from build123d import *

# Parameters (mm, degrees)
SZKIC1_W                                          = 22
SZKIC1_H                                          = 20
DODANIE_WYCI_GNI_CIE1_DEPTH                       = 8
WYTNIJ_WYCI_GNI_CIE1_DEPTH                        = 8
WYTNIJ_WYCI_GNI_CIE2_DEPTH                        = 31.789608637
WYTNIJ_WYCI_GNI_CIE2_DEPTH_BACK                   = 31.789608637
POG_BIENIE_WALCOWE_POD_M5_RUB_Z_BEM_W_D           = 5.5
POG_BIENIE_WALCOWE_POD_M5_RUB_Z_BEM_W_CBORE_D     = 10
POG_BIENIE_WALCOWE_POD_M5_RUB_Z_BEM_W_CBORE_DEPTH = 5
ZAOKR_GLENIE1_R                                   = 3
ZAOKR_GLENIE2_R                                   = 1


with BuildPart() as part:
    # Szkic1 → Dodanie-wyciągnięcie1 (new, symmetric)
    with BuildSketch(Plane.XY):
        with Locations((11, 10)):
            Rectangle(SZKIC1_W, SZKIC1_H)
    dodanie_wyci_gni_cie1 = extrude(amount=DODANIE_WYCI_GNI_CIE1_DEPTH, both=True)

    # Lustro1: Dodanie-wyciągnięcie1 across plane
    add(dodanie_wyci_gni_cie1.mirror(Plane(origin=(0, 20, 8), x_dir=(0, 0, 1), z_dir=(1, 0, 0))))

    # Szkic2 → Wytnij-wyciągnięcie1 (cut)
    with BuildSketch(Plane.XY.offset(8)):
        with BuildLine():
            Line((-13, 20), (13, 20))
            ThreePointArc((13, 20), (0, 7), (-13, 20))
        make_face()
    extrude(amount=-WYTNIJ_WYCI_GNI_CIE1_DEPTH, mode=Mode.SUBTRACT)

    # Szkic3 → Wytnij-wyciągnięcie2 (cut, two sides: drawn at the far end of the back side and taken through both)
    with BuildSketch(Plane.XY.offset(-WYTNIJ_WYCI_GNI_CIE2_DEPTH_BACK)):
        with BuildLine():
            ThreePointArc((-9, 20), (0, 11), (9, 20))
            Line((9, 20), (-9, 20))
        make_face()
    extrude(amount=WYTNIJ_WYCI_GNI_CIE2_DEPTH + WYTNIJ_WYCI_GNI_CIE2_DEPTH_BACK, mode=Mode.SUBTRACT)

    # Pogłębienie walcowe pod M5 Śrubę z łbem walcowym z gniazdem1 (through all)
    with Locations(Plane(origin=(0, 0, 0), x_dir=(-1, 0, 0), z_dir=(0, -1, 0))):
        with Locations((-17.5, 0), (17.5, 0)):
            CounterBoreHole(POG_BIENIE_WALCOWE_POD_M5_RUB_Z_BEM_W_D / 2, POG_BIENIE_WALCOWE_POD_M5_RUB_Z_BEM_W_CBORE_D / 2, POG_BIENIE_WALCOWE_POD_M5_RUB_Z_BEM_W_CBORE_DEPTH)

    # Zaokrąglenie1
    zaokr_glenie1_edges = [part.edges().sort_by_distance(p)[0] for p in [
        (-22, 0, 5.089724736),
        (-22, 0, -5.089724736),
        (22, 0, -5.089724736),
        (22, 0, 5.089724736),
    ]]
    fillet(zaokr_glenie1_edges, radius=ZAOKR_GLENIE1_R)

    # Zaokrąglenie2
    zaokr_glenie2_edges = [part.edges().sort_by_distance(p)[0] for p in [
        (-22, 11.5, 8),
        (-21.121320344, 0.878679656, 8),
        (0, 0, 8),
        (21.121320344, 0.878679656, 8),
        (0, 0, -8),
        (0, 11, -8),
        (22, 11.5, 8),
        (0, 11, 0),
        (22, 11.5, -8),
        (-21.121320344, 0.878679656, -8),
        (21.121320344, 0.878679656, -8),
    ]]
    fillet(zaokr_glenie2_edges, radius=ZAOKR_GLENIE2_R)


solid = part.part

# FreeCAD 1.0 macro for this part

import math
import FreeCAD as App
import Part
import Sketcher

V = App.Vector
Q = App.Units.Quantity


def edges_at(feature, points):
    """Names of the edges that pass closest to the given points."""
    edges = feature.Shape.Edges
    near = lambda p: min(range(len(edges)), key=lambda i: edges[i].distToShape(Part.Vertex(*p))[0])
    return sorted({f"Edge{near(p) + 1}" for p in points})


def add_polygon(sketch, points):
    """Adds a closed chain of lines whose ends are joined by coincident constraints."""
    first, n = sketch.GeometryCount, len(points)
    for a, b in zip(points, points[1:] + points[:1]):
        sketch.addGeometry(Part.LineSegment(App.Vector(*a, 0), App.Vector(*b, 0)), False)
    for i in range(n):
        sketch.addConstraint(Sketcher.Constraint("Coincident", first + i, 2, first + (i + 1) % n, 1))

doc = App.newDocument("Part")
params = doc.addObject("Spreadsheet::Sheet", "Params")
for row, (alias, value) in enumerate([
    ("sketch1_width", "22 mm"),
    ("sketch1_height", "20 mm"),
    ("pad1_length", "16 mm"),
    ("sketch2_radius", "13 mm"),
    ("pocket1_length", "8 mm"),
    ("sketch3_radius", "9 mm"),
    ("sketch4_diameter", "5.5 mm"),
    ("hole_diameter", "5.5 mm"),
    ("hole_cbore_diameter", "10 mm"),
    ("hole_cbore_depth", "5 mm"),
    ("fillet_radius", "3 mm"),
    ("fillet2_radius", "1 mm"),
], start=1):
    params.set(f"A{row}", alias)
    params.set(f"B{row}", "=" + value)
    params.setAlias(f"B{row}", alias)

body = doc.addObject("PartDesign::Body", "Body")

# Sketch on XY plane
sketch1 = doc.addObject("Sketcher::SketchObject", "Sketch")
body.addObject(sketch1)
sketch1.AttachmentSupport = (doc.XY_Plane, [""])
sketch1.MapMode = "FlatFace"
add_polygon(sketch1, [(0, 20), (0, 0), (22, 0), (22, 20)])  # lines 0-3
sketch1.addConstraint(Sketcher.Constraint("Vertical", 0))
sketch1.addConstraint(Sketcher.Constraint("Horizontal", 1))
sketch1.addConstraint(Sketcher.Constraint("Vertical", 2))
sketch1.addConstraint(Sketcher.Constraint("Horizontal", 3))
sketch1.addConstraint(Sketcher.Constraint("Coincident", 0, 2, -1, 1))
sketch1.addConstraint(Sketcher.Constraint("DistanceX", 1, 1, 1, 2, Q("22 mm")))
sketch1.addConstraint(Sketcher.Constraint("DistanceY", 0, 2, 0, 1, Q("20 mm")))
sketch1.setExpression("Constraints[9]", "Params.sketch1_width")
sketch1.setExpression("Constraints[10]", "Params.sketch1_height")
pad1 = doc.addObject("PartDesign::Pad", "Pad")
body.addObject(pad1)
pad1.Profile = sketch1
pad1.setExpression("Length", "Params.pad1_length")
pad1.Midplane = True
doc.recompute()

mirrored = doc.addObject("PartDesign::Mirrored", "Mirrored")
body.addObject(mirrored)
mirrored.Originals = [pad1]
mirrored.MirrorPlane = (doc.YZ_Plane, [""])
body.Tip = mirrored

# Sketch on XY plane
sketch2 = doc.addObject("Sketcher::SketchObject", "Sketch001")
body.addObject(sketch2)
sketch2.AttachmentSupport = (doc.XY_Plane, [""])
sketch2.MapMode = "FlatFace"
sketch2.AttachmentOffset = App.Placement(V(0, 0, 8), App.Rotation())
sketch2.addGeometry(Part.LineSegment(V(13, 20, 0), V(-13, 20, 0)), False)
sketch2.addGeometry(Part.ArcOfCircle(Part.Circle(V(0, 20, 0), V(0, 0, 1), 13), math.radians(180), math.radians(360)), False)
sketch2.addConstraint(Sketcher.Constraint("Coincident", 0, 1, 1, 2))
sketch2.addConstraint(Sketcher.Constraint("Coincident", 1, 1, 0, 2))
sketch2.addConstraint(Sketcher.Constraint("Horizontal", 0))
sketch2.addConstraint(Sketcher.Constraint("PointOnObject", 1, 3, -2))
sketch2.addConstraint(Sketcher.Constraint("Horizontal", 1, 3, 0, 1))
sketch2.addConstraint(Sketcher.Constraint("Radius", 1, Q("13 mm")))
sketch2.addConstraint(Sketcher.Constraint("DistanceY", -1, 1, 1, 3, Q("20 mm")))
sketch2.setExpression("Constraints[5]", "Params.sketch2_radius")
pocket1 = doc.addObject("PartDesign::Pocket", "Pocket")
body.addObject(pocket1)
pocket1.Profile = sketch2
pocket1.setExpression("Length", "Params.pocket1_length")

# Sketch on XY plane
sketch3 = doc.addObject("Sketcher::SketchObject", "Sketch002")
body.addObject(sketch3)
sketch3.AttachmentSupport = (doc.XY_Plane, [""])
sketch3.MapMode = "FlatFace"
sketch3.addGeometry(Part.ArcOfCircle(Part.Circle(V(0, 20, 0), V(0, 0, 1), 9), math.radians(180), math.radians(360)), False)
sketch3.addGeometry(Part.LineSegment(V(9, 20, 0), V(-9, 20, 0)), False)
sketch3.addConstraint(Sketcher.Constraint("Coincident", 0, 1, 1, 2))
sketch3.addConstraint(Sketcher.Constraint("Coincident", 1, 1, 0, 2))
sketch3.addConstraint(Sketcher.Constraint("Horizontal", 1))
sketch3.addConstraint(Sketcher.Constraint("PointOnObject", 0, 3, -2))
sketch3.addConstraint(Sketcher.Constraint("Radius", 0, Q("9 mm")))
sketch3.addConstraint(Sketcher.Constraint("DistanceY", -1, 1, 0, 3, Q("20 mm")))
sketch3.addConstraint(Sketcher.Constraint("DistanceY", -1, 1, 0, 1, Q("20 mm")))
sketch3.setExpression("Constraints[4]", "Params.sketch3_radius")
pocket2 = doc.addObject("PartDesign::Pocket", "Pocket001")
body.addObject(pocket2)
pocket2.Profile = sketch3
pocket2.Type = "ThroughAll"
pocket2.Midplane = True

# Sketch on XZ plane
sketch4 = doc.addObject("Sketcher::SketchObject", "Sketch003")
body.addObject(sketch4)
sketch4.AttachmentSupport = (doc.XZ_Plane, [""])
sketch4.MapMode = "FlatFace"
sketch4.addGeometry(Part.Circle(V(17.5, 0, 0), V(0, 0, 1), 2.8), False)
sketch4.addGeometry(Part.Circle(V(-17.5, 0, 0), V(0, 0, 1), 2.8), False)
sketch4.addConstraint(Sketcher.Constraint("Equal", 0, 1))
sketch4.addConstraint(Sketcher.Constraint("Symmetric", 0, 3, 1, 3, -1, 1))
sketch4.addConstraint(Sketcher.Constraint("PointOnObject", 0, 3, -1))
sketch4.addConstraint(Sketcher.Constraint("Diameter", 0, Q("5.5 mm")))
sketch4.addConstraint(Sketcher.Constraint("DistanceX", 1, 3, 0, 3, Q("35 mm")))
sketch4.setExpression("Constraints[3]", "Params.sketch4_diameter")
doc.recompute()
hole = doc.addObject("PartDesign::Hole", "Hole")
body.addObject(hole)
hole.Profile = sketch4
hole.ThreadType = "None"
hole.setExpression("Diameter", "Params.hole_diameter")
hole.DepthType = "ThroughAll"
hole.HoleCutType = "Counterbore"
hole.setExpression("HoleCutDiameter", "Params.hole_cbore_diameter")
hole.setExpression("HoleCutDepth", "Params.hole_cbore_depth")
doc.recompute()

fillet = doc.addObject("PartDesign::Fillet", "Fillet")
body.addObject(fillet)
fillet.Base = (hole, edges_at(hole, [
    (-22, 0, 5.09),
    (-22, 0, -5.09),
    (22, 0, -5.09),
    (22, 0, 5.09),
]))
fillet.setExpression("Radius", "Params.fillet_radius")
doc.recompute()

fillet2 = doc.addObject("PartDesign::Fillet", "Fillet001")
body.addObject(fillet2)
fillet2.Base = (fillet, edges_at(fillet, [
    (-22, 11.5, 8),
    (-21.121, 0.879, 8),
    (0, 0, 8),
    (21.121, 0.879, 8),
    (0, 0, -8),
    (0, 11, -8),
    (22, 11.5, 8),
    (0, 11, 0),
    (22, 11.5, -8),
    (-21.121, 0.879, -8),
    (21.121, 0.879, -8),
]))
fillet2.setExpression("Radius", "Params.fillet2_radius")

doc.recompute()
